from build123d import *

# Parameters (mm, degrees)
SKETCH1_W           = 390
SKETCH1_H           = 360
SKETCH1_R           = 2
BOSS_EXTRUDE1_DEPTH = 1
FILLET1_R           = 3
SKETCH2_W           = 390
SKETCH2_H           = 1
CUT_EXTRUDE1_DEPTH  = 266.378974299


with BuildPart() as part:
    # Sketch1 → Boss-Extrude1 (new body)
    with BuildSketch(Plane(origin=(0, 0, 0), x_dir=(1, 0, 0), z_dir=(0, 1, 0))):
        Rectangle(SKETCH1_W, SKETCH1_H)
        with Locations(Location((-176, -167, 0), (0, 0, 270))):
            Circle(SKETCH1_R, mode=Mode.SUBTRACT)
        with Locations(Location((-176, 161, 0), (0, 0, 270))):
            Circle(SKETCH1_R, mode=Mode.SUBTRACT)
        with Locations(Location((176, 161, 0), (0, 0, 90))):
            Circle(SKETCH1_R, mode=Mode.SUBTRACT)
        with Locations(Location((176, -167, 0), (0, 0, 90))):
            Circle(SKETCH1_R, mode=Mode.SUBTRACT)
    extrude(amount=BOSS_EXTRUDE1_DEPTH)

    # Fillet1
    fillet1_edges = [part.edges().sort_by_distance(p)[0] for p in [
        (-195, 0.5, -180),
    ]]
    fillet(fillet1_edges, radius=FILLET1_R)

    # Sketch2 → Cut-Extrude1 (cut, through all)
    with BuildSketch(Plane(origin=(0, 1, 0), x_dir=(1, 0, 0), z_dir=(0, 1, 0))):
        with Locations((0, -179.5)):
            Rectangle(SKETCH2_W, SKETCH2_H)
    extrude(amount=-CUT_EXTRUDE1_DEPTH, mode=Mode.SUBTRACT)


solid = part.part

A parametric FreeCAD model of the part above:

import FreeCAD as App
import Part
import Sketcher
Q = App.Units.Quantity


def edges_at(feature, points):
    """Names of the edges that pass closest to the given points."""
    edges = feature.Shape.Edges
    near = lambda p: min(range(len(edges)), key=lambda i: edges[i].distToShape(Part.Vertex(*p))[0])
    return sorted({f"Edge{near(p) + 1}" for p in points})

doc = App.newDocument("Part")
body = doc.addObject("PartDesign::Body", "Body")

sketch1 = body.newObject("Sketcher::SketchObject", "Sketch")
sketch1.AttachmentSupport = (doc.getObject("XZ_Plane"), [""])
sketch1.MapMode = "FlatFace"
sketch1.addGeometry(Part.LineSegment(App.Vector(-195, -180, 0), App.Vector(-195, 180, 0)), False)
sketch1.addGeometry(Part.LineSegment(App.Vector(-195, 180, 0), App.Vector(195, 180, 0)), False)
sketch1.addGeometry(Part.LineSegment(App.Vector(195, 180, 0), App.Vector(195, -180, 0)), False)
sketch1.addGeometry(Part.LineSegment(App.Vector(195, -180, 0), App.Vector(-195, -180, 0)), False)
sketch1.addGeometry(Part.Circle(App.Vector(-176, 167, 0), App.Vector(0, 0, 1), 2), False)
sketch1.addGeometry(Part.Circle(App.Vector(176, 167, 0), App.Vector(0, 0, 1), 2), False)
sketch1.addGeometry(Part.Circle(App.Vector(-176, -161, 0), App.Vector(0, 0, 1), 2), False)
sketch1.addGeometry(Part.Circle(App.Vector(176, -161, 0), App.Vector(0, 0, 1), 2), False)
sketch1.addConstraint(Sketcher.Constraint("Coincident", 0, 2, 1, 1))
sketch1.addConstraint(Sketcher.Constraint("Coincident", 1, 2, 2, 1))
sketch1.addConstraint(Sketcher.Constraint("Coincident", 2, 2, 3, 1))
sketch1.addConstraint(Sketcher.Constraint("Coincident", 3, 2, 0, 1))
sketch1.addConstraint(Sketcher.Constraint("Vertical", 0))
sketch1.addConstraint(Sketcher.Constraint("Horizontal", 1))
sketch1.addConstraint(Sketcher.Constraint("Vertical", 2))
sketch1.addConstraint(Sketcher.Constraint("Horizontal", 3))
sketch1.addConstraint(Sketcher.Constraint("Equal", 4, 5))
sketch1.addConstraint(Sketcher.Constraint("Equal", 5, 6))
sketch1.addConstraint(Sketcher.Constraint("Equal", 6, 7))
sketch1.addConstraint(Sketcher.Constraint("Symmetric", 0, 2, 2, 2, -1, 1))
sketch1.addConstraint(Sketcher.Constraint("Symmetric", 4, 3, 5, 3, -2))
sketch1.addConstraint(Sketcher.Constraint("Symmetric", 6, 3, 7, 3, -2))
sketch1.addConstraint(Sketcher.Constraint("Vertical", 4, 3, 6, 3))
sketch1.addConstraint(Sketcher.Constraint("Diameter", 4, Q("4 mm")))
sketch1.addConstraint(Sketcher.Constraint("DistanceX", 1, 1, 1, 2, Q("390 mm")))
sketch1.addConstraint(Sketcher.Constraint("DistanceY", 0, 1, 0, 2, Q("360 mm")))
sketch1.addConstraint(Sketcher.Constraint("DistanceX", 4, 3, -1, 1, Q("176 mm")))
sketch1.addConstraint(Sketcher.Constraint("DistanceY", -1, 1, 4, 3, Q("167 mm")))
sketch1.addConstraint(Sketcher.Constraint("DistanceY", 6, 3, -1, 1, Q("161 mm")))
pad1 = body.newObject("PartDesign::Pad", "Pad")
pad1.Profile = sketch1
pad1.Length = 1
pad1.Reversed = True
doc.recompute()

fillet = body.newObject("PartDesign::Fillet", "Fillet")
fillet.Base = (pad1, edges_at(pad1, [(-195, 0.5, -180)]))
fillet.Radius = 3

sketch2 = body.newObject("Sketcher::SketchObject", "Sketch001")
sketch2.AttachmentSupport = (doc.getObject("XZ_Plane"), [""])
sketch2.MapMode = "FlatFace"
sketch2.AttachmentOffset = App.Placement(App.Vector(0, 0, -1), App.Rotation())
sketch2.addGeometry(Part.LineSegment(App.Vector(-195, 179, 0), App.Vector(-195, 180, 0)), False)
sketch2.addGeometry(Part.LineSegment(App.Vector(-195, 180, 0), App.Vector(195, 180, 0)), False)
sketch2.addGeometry(Part.LineSegment(App.Vector(195, 180, 0), App.Vector(195, 179, 0)), False)
sketch2.addGeometry(Part.LineSegment(App.Vector(195, 179, 0), App.Vector(-195, 179, 0)), False)
sketch2.addConstraint(Sketcher.Constraint("Coincident", 0, 2, 1, 1))
sketch2.addConstraint(Sketcher.Constraint("Coincident", 1, 2, 2, 1))
sketch2.addConstraint(Sketcher.Constraint("Coincident", 2, 2, 3, 1))
sketch2.addConstraint(Sketcher.Constraint("Coincident", 3, 2, 0, 1))
sketch2.addConstraint(Sketcher.Constraint("Vertical", 0))
sketch2.addConstraint(Sketcher.Constraint("Horizontal", 1))
sketch2.addConstraint(Sketcher.Constraint("Vertical", 2))
sketch2.addConstraint(Sketcher.Constraint("Horizontal", 3))
sketch2.addConstraint(Sketcher.Constraint("DistanceX", 1, 1, 1, 2, Q("390 mm")))
sketch2.addConstraint(Sketcher.Constraint("DistanceY", 0, 1, 0, 2, Q("1 mm")))
sketch2.addConstraint(Sketcher.Constraint("DistanceX", 0, 2, -1, 1, Q("195 mm")))
sketch2.addConstraint(Sketcher.Constraint("DistanceY", -1, 1, 0, 2, Q("180 mm")))
pocket1 = body.newObject("PartDesign::Pocket", "Pocket")
pocket1.Profile = sketch2
pocket1.Type = "ThroughAll"
pocket1.Reversed = True

doc.recompute()
